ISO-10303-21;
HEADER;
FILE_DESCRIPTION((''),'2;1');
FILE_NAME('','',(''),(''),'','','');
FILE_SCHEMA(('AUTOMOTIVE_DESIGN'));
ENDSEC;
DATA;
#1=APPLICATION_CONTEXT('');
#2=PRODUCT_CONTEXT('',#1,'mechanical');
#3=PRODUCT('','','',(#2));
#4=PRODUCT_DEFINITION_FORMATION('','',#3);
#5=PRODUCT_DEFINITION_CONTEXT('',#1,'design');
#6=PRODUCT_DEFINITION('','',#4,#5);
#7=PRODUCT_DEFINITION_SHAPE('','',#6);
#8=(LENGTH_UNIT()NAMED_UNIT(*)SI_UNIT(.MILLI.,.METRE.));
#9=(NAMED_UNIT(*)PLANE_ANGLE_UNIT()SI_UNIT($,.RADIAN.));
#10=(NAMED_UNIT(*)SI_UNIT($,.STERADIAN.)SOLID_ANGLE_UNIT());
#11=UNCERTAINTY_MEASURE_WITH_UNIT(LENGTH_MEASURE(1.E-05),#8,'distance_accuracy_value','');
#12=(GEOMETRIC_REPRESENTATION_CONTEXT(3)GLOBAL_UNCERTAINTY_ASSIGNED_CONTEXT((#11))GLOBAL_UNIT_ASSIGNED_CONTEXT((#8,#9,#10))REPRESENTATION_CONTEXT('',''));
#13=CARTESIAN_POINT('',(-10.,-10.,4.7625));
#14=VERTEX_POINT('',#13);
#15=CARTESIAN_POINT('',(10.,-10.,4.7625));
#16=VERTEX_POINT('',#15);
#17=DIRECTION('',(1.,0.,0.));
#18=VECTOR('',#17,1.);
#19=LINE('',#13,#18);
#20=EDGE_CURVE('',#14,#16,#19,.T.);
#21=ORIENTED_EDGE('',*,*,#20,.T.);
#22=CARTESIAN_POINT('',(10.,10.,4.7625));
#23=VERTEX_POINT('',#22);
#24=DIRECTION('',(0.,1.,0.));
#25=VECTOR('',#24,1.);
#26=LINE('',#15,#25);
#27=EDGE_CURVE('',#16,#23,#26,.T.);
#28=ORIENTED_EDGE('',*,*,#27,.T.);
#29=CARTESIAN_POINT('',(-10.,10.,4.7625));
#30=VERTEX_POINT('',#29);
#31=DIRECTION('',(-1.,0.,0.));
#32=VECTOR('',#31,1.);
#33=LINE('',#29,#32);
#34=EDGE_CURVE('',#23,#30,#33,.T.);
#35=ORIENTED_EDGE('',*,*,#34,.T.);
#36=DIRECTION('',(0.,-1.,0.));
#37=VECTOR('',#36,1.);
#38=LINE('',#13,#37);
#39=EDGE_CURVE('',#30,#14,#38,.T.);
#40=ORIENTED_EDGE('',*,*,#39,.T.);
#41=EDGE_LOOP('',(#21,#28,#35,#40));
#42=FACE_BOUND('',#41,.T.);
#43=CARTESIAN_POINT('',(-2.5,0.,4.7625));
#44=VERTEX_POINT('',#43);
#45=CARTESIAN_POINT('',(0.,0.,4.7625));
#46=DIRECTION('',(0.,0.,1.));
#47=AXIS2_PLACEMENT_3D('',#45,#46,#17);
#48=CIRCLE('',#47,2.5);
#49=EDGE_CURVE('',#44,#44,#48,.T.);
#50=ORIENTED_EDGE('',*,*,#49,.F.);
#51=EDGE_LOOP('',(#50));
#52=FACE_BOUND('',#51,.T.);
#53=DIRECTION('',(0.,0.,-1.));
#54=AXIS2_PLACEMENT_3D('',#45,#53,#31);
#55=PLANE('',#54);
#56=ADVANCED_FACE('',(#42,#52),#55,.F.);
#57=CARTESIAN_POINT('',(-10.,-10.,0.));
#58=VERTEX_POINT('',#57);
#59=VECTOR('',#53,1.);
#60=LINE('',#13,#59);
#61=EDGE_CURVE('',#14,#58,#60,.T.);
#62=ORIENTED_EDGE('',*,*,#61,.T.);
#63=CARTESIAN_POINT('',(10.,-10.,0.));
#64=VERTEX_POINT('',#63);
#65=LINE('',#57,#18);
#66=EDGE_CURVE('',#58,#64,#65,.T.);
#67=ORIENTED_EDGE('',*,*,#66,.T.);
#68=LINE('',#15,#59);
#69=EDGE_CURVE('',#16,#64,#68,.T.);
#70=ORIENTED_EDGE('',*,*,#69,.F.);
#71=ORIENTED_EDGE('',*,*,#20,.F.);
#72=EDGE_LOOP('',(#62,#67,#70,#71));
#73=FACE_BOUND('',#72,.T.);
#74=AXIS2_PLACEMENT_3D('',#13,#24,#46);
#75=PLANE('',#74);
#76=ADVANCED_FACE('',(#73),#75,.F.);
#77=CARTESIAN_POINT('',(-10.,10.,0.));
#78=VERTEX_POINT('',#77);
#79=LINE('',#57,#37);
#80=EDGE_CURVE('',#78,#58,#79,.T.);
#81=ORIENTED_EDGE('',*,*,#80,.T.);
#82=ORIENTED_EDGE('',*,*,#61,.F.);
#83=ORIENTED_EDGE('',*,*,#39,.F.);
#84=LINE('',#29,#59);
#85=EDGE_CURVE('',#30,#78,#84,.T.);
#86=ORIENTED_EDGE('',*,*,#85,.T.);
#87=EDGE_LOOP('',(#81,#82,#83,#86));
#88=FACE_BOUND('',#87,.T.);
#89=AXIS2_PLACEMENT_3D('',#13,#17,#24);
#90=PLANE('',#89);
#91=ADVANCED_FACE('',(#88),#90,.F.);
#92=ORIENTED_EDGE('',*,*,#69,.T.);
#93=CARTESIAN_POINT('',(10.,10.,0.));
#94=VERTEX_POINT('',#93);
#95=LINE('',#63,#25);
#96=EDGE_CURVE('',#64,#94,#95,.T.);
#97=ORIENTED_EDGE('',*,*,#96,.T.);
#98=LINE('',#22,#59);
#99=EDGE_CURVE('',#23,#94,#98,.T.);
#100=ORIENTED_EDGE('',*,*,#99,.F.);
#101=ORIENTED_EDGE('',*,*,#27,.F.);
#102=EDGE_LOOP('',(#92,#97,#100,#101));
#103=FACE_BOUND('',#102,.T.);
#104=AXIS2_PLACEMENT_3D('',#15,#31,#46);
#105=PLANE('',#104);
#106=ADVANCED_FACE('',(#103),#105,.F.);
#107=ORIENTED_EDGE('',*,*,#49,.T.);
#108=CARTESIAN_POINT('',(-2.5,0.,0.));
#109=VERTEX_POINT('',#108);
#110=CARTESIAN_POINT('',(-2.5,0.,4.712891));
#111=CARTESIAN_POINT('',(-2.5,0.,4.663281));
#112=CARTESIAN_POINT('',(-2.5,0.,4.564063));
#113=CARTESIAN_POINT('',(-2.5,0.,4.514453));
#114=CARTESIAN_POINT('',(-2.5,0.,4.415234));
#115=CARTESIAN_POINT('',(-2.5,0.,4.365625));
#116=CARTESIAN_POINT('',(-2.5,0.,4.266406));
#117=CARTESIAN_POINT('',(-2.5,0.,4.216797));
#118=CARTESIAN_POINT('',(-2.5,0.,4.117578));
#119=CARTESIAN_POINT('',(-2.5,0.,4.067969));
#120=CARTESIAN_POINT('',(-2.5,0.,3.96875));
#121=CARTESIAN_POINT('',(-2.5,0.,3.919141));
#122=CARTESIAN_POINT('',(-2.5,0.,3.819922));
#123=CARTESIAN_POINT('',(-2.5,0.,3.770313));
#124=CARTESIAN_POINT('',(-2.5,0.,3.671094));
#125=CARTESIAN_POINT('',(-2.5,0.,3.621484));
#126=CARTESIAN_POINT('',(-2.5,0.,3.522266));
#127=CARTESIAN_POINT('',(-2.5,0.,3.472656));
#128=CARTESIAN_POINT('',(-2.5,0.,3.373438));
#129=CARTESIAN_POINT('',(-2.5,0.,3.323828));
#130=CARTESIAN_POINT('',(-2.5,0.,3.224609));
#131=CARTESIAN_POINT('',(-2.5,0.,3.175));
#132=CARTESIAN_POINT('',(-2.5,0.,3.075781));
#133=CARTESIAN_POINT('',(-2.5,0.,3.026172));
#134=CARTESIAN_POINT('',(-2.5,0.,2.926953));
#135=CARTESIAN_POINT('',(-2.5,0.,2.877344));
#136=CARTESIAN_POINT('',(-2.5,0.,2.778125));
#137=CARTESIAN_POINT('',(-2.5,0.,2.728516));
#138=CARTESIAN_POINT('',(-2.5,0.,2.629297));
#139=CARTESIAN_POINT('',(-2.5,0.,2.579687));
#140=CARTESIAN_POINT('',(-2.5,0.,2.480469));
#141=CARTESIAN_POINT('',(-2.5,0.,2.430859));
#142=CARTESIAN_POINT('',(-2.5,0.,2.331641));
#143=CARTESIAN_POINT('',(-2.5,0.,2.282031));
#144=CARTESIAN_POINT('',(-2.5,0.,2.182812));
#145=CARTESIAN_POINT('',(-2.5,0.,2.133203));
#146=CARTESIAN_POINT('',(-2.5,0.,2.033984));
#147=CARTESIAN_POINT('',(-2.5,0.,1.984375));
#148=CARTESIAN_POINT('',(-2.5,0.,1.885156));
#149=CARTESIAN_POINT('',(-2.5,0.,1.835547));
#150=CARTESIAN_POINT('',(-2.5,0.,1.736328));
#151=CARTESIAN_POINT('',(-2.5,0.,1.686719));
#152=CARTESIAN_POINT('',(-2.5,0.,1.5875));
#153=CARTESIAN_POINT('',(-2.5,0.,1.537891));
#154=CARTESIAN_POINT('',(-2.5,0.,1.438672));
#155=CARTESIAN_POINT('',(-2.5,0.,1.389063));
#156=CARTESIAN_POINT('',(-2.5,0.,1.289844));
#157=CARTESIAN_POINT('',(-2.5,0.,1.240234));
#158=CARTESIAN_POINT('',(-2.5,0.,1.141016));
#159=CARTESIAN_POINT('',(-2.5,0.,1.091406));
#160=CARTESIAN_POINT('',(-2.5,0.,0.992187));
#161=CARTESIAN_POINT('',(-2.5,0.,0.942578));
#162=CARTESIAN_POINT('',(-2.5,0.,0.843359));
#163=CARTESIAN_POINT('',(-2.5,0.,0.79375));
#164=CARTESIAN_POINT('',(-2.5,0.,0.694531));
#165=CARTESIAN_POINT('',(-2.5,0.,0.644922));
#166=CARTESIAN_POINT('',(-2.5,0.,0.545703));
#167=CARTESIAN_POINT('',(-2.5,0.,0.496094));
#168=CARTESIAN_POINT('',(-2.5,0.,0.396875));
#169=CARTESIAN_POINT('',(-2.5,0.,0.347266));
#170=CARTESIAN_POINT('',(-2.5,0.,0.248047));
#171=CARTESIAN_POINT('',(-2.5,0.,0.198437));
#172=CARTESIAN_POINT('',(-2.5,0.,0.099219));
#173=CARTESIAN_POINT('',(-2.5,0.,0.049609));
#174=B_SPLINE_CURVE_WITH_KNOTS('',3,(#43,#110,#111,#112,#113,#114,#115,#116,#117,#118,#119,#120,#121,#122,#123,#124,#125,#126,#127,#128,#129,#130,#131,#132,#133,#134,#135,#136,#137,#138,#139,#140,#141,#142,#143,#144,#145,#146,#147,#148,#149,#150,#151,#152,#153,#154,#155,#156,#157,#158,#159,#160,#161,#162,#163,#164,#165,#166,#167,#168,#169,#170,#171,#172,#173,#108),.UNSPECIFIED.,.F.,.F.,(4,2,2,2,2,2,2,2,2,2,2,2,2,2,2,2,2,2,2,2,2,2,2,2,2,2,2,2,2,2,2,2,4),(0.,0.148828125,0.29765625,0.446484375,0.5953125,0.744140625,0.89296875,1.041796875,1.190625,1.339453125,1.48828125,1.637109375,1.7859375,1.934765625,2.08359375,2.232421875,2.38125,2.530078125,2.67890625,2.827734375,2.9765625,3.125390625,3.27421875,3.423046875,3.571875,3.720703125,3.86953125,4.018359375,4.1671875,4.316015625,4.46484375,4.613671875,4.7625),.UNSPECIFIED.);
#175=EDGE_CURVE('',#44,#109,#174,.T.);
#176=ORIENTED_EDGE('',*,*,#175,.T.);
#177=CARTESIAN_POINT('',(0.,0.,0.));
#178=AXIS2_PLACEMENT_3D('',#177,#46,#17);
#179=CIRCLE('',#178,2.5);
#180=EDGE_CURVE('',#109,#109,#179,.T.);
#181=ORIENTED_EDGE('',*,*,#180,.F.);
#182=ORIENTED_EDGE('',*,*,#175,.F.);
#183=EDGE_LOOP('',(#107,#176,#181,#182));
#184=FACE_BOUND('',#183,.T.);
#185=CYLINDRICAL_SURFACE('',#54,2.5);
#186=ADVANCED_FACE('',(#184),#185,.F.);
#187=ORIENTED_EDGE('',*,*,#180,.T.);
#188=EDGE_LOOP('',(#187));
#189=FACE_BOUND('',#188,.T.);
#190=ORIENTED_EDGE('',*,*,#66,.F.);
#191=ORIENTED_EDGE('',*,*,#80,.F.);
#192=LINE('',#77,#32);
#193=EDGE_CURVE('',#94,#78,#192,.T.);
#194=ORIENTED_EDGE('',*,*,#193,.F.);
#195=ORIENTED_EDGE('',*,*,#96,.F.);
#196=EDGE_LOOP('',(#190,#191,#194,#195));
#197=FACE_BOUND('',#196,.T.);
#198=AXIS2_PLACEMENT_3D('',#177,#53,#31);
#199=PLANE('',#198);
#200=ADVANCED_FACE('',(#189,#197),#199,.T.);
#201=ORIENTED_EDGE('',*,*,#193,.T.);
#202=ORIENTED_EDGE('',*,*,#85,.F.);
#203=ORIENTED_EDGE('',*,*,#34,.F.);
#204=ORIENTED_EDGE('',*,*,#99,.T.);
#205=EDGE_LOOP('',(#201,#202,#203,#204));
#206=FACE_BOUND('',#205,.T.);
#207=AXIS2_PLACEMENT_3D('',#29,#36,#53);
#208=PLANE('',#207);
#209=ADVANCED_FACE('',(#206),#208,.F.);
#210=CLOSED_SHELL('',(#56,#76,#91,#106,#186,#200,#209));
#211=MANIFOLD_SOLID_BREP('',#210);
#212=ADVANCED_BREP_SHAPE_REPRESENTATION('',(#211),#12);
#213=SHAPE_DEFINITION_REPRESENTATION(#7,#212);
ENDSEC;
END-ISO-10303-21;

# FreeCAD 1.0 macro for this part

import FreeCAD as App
import Part
import Sketcher

doc = App.newDocument("Part")
body = doc.addObject("PartDesign::Body", "Body")

# Sketch on XY plane
sketch1 = doc.addObject("Sketcher::SketchObject", "Sketch")
body.addObject(sketch1)
sketch1.AttachmentSupport = (doc.XY_Plane, [""])
sketch1.MapMode = "FlatFace"
sketch1.addGeometry(Part.LineSegment(App.Vector(-10, 10, 0), App.Vector(-10, -10, 0)), False)
sketch1.addGeometry(Part.LineSegment(App.Vector(-10, -10, 0), App.Vector(10, -10, 0)), False)
sketch1.addGeometry(Part.LineSegment(App.Vector(10, -10, 0), App.Vector(10, 10, 0)), False)
sketch1.addGeometry(Part.LineSegment(App.Vector(10, 10, 0), App.Vector(-10, 10, 0)), False)
sketch1.addGeometry(Part.Circle(App.Vector(0, 0, 0), App.Vector(0, 0, 1), 2.5), False)
sketch1.addConstraint(Sketcher.Constraint("Coincident", 0, 2, 1, 1))
sketch1.addConstraint(Sketcher.Constraint("Coincident", 1, 2, 2, 1))
sketch1.addConstraint(Sketcher.Constraint("Coincident", 2, 2, 3, 1))
sketch1.addConstraint(Sketcher.Constraint("Coincident", 3, 2, 0, 1))
sketch1.addConstraint(Sketcher.Constraint("Vertical", 0))
sketch1.addConstraint(Sketcher.Constraint("Horizontal", 1))
sketch1.addConstraint(Sketcher.Constraint("Vertical", 2))
sketch1.addConstraint(Sketcher.Constraint("Horizontal", 3))
sketch1.addConstraint(Sketcher.Constraint("Coincident", 4, 3, -1, 1))
sketch1.addConstraint(Sketcher.Constraint("Symmetric", 0, 2, 2, 2, -1, 1))
sketch1.addConstraint(Sketcher.Constraint("Equal", 3, 0))
sketch1.addConstraint(Sketcher.Constraint("Diameter", 4, 5.0))
sketch1.addConstraint(Sketcher.Constraint("DistanceX", 1, 1, 1, 2, 20.0))
pad1 = doc.addObject("PartDesign::Pad", "Pad")
body.addObject(pad1)
pad1.Profile = sketch1
pad1.Length = 4.7625

doc.recompute()
